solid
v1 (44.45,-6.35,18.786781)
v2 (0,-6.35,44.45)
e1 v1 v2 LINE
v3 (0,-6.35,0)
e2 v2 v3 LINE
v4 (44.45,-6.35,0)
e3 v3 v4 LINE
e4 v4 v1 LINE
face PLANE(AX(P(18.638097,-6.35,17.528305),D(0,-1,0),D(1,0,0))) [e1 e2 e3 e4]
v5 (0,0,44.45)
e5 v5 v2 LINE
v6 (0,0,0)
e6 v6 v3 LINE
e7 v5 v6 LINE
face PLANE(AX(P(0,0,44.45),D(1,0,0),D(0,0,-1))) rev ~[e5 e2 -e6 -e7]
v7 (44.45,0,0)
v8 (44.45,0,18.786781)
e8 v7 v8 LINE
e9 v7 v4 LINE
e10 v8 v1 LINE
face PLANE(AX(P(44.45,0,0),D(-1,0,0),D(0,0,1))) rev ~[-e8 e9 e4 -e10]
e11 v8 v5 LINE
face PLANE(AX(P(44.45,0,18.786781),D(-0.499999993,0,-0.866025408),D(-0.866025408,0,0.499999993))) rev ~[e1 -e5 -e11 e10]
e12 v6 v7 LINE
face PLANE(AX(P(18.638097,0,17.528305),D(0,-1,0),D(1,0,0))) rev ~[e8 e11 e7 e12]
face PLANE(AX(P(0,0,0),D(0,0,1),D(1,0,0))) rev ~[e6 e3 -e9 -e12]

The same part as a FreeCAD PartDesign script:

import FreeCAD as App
import Part
import Sketcher
Q = App.Units.Quantity

doc = App.newDocument("Part")
body = doc.addObject("PartDesign::Body", "Body")

# Sketch on XZ plane
sketch1 = body.newObject("Sketcher::SketchObject", "Sketch")
sketch1.AttachmentSupport = (doc.getObject("XZ_Plane"), [""])
sketch1.MapMode = "FlatFace"
sketch1.addGeometry(Part.LineSegment(App.Vector(0, 0, 0), App.Vector(44.45, 0, 0)), False)
sketch1.addGeometry(Part.LineSegment(App.Vector(44.45, 0, 0), App.Vector(44.45, 18.786781, 0)), False)
sketch1.addGeometry(Part.LineSegment(App.Vector(44.45, 18.786781, 0), App.Vector(0, 44.45, 0)), False)
sketch1.addGeometry(Part.LineSegment(App.Vector(0, 44.45, 0), App.Vector(0, 0, 0)), False)
sketch1.addConstraint(Sketcher.Constraint("Coincident", 0, 2, 1, 1))
sketch1.addConstraint(Sketcher.Constraint("Coincident", 1, 2, 2, 1))
sketch1.addConstraint(Sketcher.Constraint("Coincident", 2, 2, 3, 1))
sketch1.addConstraint(Sketcher.Constraint("Coincident", 3, 2, 0, 1))
sketch1.addConstraint(Sketcher.Constraint("Horizontal", 0))
sketch1.addConstraint(Sketcher.Constraint("Vertical", 1))
sketch1.addConstraint(Sketcher.Constraint("Vertical", 3))
sketch1.addConstraint(Sketcher.Constraint("Coincident", 3, 2, -1, 1))
sketch1.addConstraint(Sketcher.Constraint("Equal", 0, 3))
sketch1.addConstraint(Sketcher.Constraint("Angle", 2, Q("150 deg")))
sketch1.addConstraint(Sketcher.Constraint("DistanceX", 0, 1, 0, 2, Q("1.75 in")))
pad1 = body.newObject("PartDesign::Pad", "Pad")
pad1.Profile = sketch1
pad1.Length = Q("0.25 in")

doc.recompute()
